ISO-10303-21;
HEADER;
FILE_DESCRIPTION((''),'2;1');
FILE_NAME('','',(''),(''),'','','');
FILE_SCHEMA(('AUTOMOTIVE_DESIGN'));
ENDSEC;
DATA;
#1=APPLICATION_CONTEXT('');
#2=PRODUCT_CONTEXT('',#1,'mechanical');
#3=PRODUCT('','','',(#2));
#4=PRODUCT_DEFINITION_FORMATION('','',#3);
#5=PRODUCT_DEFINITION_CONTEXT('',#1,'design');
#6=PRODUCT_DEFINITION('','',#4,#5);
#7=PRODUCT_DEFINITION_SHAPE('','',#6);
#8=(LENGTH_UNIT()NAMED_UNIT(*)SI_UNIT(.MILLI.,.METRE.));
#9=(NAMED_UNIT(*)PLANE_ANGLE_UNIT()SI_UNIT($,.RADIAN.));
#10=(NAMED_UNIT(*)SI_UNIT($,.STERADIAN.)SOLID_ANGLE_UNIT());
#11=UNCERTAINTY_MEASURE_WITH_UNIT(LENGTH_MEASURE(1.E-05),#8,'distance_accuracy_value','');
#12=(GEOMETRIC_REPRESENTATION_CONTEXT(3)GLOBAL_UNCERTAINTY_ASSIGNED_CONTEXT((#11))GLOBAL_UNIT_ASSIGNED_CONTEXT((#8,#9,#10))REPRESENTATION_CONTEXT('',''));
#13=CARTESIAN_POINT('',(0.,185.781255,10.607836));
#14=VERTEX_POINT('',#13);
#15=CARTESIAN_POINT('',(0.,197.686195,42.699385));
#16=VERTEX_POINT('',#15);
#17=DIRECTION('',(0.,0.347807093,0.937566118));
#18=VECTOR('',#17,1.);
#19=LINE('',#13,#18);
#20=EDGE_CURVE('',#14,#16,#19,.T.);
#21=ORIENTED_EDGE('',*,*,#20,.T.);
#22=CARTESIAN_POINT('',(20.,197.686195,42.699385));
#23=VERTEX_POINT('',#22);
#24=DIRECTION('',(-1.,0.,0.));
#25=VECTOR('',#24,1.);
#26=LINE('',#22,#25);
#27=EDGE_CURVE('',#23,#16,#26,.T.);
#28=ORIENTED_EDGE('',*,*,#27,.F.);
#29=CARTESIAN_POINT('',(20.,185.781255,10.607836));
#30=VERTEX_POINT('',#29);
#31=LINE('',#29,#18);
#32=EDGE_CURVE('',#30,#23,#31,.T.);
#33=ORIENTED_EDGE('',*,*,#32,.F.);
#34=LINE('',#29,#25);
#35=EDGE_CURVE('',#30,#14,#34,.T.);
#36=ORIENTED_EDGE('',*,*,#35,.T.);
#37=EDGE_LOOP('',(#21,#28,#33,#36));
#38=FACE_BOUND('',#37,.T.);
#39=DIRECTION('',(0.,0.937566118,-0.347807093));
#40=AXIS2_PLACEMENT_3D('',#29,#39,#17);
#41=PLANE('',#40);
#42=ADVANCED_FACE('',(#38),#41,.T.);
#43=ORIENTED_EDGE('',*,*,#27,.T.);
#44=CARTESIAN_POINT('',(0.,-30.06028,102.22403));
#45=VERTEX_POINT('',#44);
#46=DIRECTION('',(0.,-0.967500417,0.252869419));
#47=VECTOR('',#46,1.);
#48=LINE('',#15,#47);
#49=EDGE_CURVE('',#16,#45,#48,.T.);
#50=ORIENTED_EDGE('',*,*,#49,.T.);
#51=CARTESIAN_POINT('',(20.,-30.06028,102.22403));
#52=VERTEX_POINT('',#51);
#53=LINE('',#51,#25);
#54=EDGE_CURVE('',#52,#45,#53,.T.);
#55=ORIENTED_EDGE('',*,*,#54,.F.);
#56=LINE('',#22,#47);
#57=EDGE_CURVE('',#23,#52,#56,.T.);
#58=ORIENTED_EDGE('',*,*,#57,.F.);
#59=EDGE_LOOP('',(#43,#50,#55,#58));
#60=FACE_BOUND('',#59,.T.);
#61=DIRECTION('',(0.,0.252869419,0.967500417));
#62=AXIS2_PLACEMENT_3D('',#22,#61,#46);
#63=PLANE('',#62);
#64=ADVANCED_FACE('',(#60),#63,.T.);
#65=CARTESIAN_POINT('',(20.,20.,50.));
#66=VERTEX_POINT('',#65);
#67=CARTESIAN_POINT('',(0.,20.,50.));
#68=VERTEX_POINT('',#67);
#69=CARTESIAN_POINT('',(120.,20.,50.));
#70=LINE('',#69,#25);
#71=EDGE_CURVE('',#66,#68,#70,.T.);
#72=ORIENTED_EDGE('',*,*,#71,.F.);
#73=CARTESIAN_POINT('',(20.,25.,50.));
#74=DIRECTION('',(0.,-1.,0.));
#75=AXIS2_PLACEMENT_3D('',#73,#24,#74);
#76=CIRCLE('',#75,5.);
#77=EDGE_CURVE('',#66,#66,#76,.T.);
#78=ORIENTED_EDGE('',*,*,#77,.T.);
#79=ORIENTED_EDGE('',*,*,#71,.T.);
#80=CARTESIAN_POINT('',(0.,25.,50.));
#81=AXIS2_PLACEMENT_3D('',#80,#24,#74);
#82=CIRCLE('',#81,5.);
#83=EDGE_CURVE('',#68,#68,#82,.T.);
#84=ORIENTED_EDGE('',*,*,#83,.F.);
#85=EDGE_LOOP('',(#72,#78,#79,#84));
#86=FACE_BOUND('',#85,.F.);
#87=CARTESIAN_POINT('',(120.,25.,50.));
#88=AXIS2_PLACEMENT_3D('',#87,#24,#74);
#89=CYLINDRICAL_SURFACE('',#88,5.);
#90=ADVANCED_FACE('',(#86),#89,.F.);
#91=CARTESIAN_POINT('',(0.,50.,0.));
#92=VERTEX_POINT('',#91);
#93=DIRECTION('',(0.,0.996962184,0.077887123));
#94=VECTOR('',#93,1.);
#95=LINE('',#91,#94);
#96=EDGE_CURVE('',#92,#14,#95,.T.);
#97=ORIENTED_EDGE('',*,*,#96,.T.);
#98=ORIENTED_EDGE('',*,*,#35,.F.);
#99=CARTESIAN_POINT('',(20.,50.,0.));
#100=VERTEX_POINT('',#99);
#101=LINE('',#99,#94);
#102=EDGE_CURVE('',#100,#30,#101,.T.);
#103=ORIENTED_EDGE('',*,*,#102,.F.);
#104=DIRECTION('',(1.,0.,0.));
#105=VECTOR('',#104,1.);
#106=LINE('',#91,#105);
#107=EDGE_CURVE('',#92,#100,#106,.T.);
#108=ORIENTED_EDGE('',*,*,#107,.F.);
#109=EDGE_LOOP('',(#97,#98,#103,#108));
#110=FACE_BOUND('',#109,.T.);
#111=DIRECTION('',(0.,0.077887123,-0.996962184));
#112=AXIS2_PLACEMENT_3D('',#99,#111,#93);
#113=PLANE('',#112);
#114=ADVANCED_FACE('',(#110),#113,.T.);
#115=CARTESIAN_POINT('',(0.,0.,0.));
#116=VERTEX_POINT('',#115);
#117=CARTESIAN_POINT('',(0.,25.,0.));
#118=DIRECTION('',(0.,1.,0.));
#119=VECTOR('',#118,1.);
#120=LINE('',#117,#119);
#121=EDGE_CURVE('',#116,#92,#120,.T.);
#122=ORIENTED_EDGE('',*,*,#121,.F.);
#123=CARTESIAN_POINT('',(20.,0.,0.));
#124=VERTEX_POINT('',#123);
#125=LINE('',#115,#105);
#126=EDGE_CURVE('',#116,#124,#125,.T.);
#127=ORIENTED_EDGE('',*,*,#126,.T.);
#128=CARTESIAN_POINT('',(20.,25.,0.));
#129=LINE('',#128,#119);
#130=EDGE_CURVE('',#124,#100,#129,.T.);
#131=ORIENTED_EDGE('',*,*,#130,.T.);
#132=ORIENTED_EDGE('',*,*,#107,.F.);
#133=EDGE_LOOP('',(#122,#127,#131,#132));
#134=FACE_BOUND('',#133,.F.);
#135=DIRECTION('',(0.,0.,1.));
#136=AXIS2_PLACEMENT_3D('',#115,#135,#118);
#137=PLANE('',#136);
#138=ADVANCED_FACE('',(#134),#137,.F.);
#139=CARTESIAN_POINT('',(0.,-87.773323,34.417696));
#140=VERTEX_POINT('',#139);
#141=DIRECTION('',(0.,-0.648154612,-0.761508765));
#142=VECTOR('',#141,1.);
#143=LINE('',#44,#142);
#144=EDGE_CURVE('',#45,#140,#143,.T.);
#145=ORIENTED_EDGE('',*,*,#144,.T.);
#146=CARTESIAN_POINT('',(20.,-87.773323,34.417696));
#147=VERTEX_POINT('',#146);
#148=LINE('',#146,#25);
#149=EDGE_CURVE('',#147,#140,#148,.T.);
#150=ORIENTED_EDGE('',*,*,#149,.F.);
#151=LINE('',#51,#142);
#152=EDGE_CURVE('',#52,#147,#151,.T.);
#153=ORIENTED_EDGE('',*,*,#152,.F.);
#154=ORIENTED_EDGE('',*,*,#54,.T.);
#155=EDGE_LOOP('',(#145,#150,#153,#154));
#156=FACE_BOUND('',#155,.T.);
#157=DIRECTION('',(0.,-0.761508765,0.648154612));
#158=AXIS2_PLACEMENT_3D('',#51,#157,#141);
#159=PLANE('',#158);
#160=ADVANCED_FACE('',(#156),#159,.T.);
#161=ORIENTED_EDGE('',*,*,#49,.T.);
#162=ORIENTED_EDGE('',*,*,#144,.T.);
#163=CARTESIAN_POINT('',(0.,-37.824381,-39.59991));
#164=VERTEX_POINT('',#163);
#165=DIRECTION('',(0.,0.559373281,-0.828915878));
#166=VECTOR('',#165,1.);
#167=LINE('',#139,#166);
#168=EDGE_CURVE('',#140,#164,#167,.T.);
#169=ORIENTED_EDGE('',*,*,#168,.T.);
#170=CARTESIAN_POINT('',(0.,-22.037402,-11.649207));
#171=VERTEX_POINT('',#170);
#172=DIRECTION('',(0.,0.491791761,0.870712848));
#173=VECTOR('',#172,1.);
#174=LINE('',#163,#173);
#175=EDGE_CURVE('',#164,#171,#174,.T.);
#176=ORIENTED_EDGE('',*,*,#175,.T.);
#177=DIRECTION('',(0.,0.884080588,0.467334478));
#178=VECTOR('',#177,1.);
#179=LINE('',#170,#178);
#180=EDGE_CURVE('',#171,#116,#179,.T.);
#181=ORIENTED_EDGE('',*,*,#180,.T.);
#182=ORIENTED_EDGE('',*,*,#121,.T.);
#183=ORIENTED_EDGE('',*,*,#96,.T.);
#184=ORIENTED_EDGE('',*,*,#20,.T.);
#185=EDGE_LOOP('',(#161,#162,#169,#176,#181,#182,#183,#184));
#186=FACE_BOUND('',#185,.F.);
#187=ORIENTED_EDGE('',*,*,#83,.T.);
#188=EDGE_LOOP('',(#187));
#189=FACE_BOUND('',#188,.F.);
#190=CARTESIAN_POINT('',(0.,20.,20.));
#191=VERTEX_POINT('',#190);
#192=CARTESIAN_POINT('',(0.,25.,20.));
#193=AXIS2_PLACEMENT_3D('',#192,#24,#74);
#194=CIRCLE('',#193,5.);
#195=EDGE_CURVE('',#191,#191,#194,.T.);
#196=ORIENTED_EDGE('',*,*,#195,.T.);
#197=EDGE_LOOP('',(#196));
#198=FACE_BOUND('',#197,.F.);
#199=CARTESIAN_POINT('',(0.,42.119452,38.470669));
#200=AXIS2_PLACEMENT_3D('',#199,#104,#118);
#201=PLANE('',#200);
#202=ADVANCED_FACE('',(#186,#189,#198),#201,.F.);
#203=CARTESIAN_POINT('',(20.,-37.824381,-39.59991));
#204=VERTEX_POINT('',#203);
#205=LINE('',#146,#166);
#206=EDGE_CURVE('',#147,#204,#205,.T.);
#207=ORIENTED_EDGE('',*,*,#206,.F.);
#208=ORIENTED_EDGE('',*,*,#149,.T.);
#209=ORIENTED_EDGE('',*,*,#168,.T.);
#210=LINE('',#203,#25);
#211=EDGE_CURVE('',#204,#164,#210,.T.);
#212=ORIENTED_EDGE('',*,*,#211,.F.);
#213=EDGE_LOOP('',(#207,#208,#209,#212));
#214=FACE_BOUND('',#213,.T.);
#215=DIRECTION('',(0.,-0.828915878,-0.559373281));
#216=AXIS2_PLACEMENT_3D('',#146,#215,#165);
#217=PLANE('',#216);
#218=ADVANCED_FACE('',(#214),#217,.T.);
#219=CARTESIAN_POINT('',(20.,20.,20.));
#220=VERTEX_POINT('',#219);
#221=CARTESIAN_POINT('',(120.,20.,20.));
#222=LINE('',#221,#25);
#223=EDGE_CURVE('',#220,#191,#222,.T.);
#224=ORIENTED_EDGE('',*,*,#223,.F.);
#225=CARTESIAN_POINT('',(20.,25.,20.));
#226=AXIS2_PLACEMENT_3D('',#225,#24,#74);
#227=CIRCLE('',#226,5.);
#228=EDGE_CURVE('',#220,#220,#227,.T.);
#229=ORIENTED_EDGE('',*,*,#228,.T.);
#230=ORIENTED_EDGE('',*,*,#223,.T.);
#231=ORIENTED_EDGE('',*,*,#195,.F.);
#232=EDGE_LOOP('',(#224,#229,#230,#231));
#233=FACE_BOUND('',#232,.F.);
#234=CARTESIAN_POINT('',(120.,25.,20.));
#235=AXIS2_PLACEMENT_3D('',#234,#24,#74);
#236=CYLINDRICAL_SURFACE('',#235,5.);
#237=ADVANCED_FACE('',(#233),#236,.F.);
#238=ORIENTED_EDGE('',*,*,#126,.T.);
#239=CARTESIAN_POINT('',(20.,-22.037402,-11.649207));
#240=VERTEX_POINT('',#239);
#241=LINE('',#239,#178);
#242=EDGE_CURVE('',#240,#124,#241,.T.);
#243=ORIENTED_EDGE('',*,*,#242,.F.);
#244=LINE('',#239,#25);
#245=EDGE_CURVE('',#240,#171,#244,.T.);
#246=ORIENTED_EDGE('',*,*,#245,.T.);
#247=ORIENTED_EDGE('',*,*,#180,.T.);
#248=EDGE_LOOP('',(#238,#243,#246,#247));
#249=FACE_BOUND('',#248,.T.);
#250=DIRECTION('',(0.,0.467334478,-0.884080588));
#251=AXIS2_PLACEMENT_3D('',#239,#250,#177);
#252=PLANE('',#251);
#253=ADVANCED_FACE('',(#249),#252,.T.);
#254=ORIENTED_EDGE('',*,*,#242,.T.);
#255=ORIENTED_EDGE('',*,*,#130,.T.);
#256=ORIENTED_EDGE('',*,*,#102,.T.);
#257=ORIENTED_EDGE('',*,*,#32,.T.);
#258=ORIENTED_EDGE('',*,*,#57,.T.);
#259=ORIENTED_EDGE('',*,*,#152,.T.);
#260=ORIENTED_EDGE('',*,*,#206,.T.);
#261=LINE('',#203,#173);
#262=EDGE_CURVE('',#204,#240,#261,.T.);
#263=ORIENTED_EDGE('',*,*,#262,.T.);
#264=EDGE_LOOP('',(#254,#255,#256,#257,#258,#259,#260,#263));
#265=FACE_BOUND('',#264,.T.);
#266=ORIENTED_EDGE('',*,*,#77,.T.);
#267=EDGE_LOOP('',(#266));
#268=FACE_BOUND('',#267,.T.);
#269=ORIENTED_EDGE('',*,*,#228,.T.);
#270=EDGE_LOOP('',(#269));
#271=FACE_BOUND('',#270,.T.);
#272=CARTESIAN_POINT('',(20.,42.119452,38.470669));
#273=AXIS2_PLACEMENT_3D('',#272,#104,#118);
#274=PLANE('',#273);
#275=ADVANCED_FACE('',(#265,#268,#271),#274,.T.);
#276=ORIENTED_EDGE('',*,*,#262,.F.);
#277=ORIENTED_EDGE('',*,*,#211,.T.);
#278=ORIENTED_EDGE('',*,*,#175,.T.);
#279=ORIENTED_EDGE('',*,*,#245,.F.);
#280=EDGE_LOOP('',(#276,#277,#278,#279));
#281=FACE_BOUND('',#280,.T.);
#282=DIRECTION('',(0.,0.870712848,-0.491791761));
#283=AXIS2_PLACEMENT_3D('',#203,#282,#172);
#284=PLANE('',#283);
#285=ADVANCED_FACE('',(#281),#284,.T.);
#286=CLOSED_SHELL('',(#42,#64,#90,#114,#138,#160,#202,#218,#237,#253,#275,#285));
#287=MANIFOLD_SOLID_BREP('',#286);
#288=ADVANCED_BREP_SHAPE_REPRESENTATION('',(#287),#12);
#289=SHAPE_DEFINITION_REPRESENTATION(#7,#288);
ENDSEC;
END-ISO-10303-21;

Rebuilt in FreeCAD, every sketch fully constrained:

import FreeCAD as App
import Part
import Sketcher

V = App.Vector
Q = App.Units.Quantity

doc = App.newDocument("Part")
params = doc.addObject("Spreadsheet::Sheet", "Params")
for row, (alias, value) in enumerate([
    ("sketch1_width", "50 mm"),
    ("sketch1_height", "70 mm"),
    ("pad1_length", "20 mm"),
    ("sketch2_diameter", "10 mm"),
    ("hole_diameter", "10 mm"),
    ("hole_depth", "100 mm"),
    ("sketch3_width", "50 mm"),
    ("sketch3_height", "70 mm"),
    ("pad2_length", "20 mm"),
], start=1):
    params.set(f"A{row}", alias)
    params.set(f"B{row}", "=" + value)
    params.setAlias(f"B{row}", alias)

body = doc.addObject("PartDesign::Body", "Body")

# Sketch on YZ plane
sketch1 = doc.addObject("Sketcher::SketchObject", "Sketch")
body.addObject(sketch1)
sketch1.AttachmentSupport = (doc.YZ_Plane, [""])
sketch1.MapMode = "FlatFace"
sketch1.addGeometry(Part.LineSegment(V(0, 70, 0), V(0, 0, 0)), False)
sketch1.addGeometry(Part.LineSegment(V(0, 0, 0), V(50, 0, 0)), False)
sketch1.addGeometry(Part.LineSegment(V(50, 0, 0), V(50, 70, 0)), False)
sketch1.addGeometry(Part.LineSegment(V(50, 70, 0), V(0, 70, 0)), False)
sketch1.addConstraint(Sketcher.Constraint("Coincident", 0, 2, 1, 1))
sketch1.addConstraint(Sketcher.Constraint("Coincident", 1, 2, 2, 1))
sketch1.addConstraint(Sketcher.Constraint("Coincident", 2, 2, 3, 1))
sketch1.addConstraint(Sketcher.Constraint("Coincident", 3, 2, 0, 1))
sketch1.addConstraint(Sketcher.Constraint("Vertical", 0))
sketch1.addConstraint(Sketcher.Constraint("Horizontal", 1))
sketch1.addConstraint(Sketcher.Constraint("Vertical", 2))
sketch1.addConstraint(Sketcher.Constraint("Horizontal", 3))
sketch1.addConstraint(Sketcher.Constraint("Coincident", 0, 2, -1, 1))
sketch1.addConstraint(Sketcher.Constraint("DistanceX", 1, 1, 1, 2, Q("50 mm")))
sketch1.addConstraint(Sketcher.Constraint("DistanceY", 0, 2, 0, 1, Q("70 mm")))
sketch1.setExpression("Constraints[9]", "Params.sketch1_width")
sketch1.setExpression("Constraints[10]", "Params.sketch1_height")
pad1 = doc.addObject("PartDesign::Pad", "Pad")
body.addObject(pad1)
pad1.Profile = sketch1
pad1.setExpression("Length", "Params.pad1_length")

# Sketch on YZ plane
sketch2 = doc.addObject("Sketcher::SketchObject", "Sketch001")
body.addObject(sketch2)
sketch2.AttachmentSupport = (doc.YZ_Plane, [""])
sketch2.MapMode = "FlatFace"
sketch2.AttachmentOffset = App.Placement(V(0, 0, 20), App.Rotation())
sketch2.addGeometry(Part.Circle(V(25, 20, 0), V(0, 0, 1), 5), False)
sketch2.addGeometry(Part.Circle(V(25, 50, 0), V(0, 0, 1), 5), False)
sketch2.addConstraint(Sketcher.Constraint("Equal", 0, 1))
sketch2.addConstraint(Sketcher.Constraint("Vertical", 0, 3, 1, 3))
sketch2.addConstraint(Sketcher.Constraint("Diameter", 0, Q("10 mm")))
sketch2.addConstraint(Sketcher.Constraint("DistanceX", -1, 1, 0, 3, Q("25 mm")))
sketch2.addConstraint(Sketcher.Constraint("DistanceY", -1, 1, 0, 3, Q("20 mm")))
sketch2.addConstraint(Sketcher.Constraint("DistanceY", -1, 1, 1, 3, Q("50 mm")))
sketch2.setExpression("Constraints[2]", "Params.sketch2_diameter")
doc.recompute()
hole = doc.addObject("PartDesign::Hole", "Hole")
body.addObject(hole)
hole.Profile = sketch2
hole.ThreadType = "None"
hole.setExpression("Diameter", "Params.hole_diameter")
hole.DepthType = "Dimension"
hole.setExpression("Depth", "Params.hole_depth")
hole.DrillPoint = "Flat"

# Sketch on YZ plane
sketch3 = doc.addObject("Sketcher::SketchObject", "Sketch002")
body.addObject(sketch3)
sketch3.AttachmentSupport = (doc.YZ_Plane, [""])
sketch3.MapMode = "FlatFace"
sketch3.AttachmentOffset = App.Placement(V(0, 0, 20), App.Rotation())
sketch3.addGeometry(Part.LineSegment(V(-22, -12, 0), V(0, 0, 0)), False)
sketch3.addGeometry(Part.LineSegment(V(0, 0, 0), V(0, 70, 0)), False)
sketch3.addGeometry(Part.LineSegment(V(0, 70, 0), V(50, 70, 0)), False)
sketch3.addGeometry(Part.LineSegment(V(50, 70, 0), V(50, 0, 0)), False)
sketch3.addGeometry(Part.LineSegment(V(50, 0, 0), V(186, 11, 0)), False)
sketch3.addGeometry(Part.LineSegment(V(186, 11, 0), V(198, 43, 0)), False)
sketch3.addGeometry(Part.LineSegment(V(198, 43, 0), V(-30, 102, 0)), False)
sketch3.addGeometry(Part.LineSegment(V(-30, 102, 0), V(-88, 34, 0)), False)
sketch3.addGeometry(Part.LineSegment(V(-88, 34, 0), V(-38, -40, 0)), False)
sketch3.addGeometry(Part.LineSegment(V(-38, -40, 0), V(-22, -12, 0)), False)
sketch3.addConstraint(Sketcher.Constraint("Coincident", 0, 2, 1, 1))
sketch3.addConstraint(Sketcher.Constraint("Coincident", 1, 2, 2, 1))
sketch3.addConstraint(Sketcher.Constraint("Coincident", 2, 2, 3, 1))
sketch3.addConstraint(Sketcher.Constraint("Coincident", 3, 2, 4, 1))
sketch3.addConstraint(Sketcher.Constraint("Coincident", 4, 2, 5, 1))
sketch3.addConstraint(Sketcher.Constraint("Coincident", 5, 2, 6, 1))
sketch3.addConstraint(Sketcher.Constraint("Coincident", 6, 2, 7, 1))
sketch3.addConstraint(Sketcher.Constraint("Coincident", 7, 2, 8, 1))
sketch3.addConstraint(Sketcher.Constraint("Coincident", 8, 2, 9, 1))
sketch3.addConstraint(Sketcher.Constraint("Coincident", 9, 2, 0, 1))
sketch3.addConstraint(Sketcher.Constraint("Vertical", 1))
sketch3.addConstraint(Sketcher.Constraint("Horizontal", 2))
sketch3.addConstraint(Sketcher.Constraint("Vertical", 3))
sketch3.addConstraint(Sketcher.Constraint("Coincident", 0, 2, -1, 1))
sketch3.addConstraint(Sketcher.Constraint("PointOnObject", 3, 2, -1))
sketch3.addConstraint(Sketcher.Constraint("DistanceX", 2, 1, 2, 2, Q("50 mm")))
sketch3.addConstraint(Sketcher.Constraint("DistanceY", 1, 1, 1, 2, Q("70 mm")))
sketch3.addConstraint(Sketcher.Constraint("DistanceX", 9, 2, -1, 1, Q("22.037402 mm")))
sketch3.addConstraint(Sketcher.Constraint("Distance", 4, Q("136.19499 mm")))
sketch3.addConstraint(Sketcher.Constraint("Distance", 5, Q("34.228572 mm")))
sketch3.addConstraint(Sketcher.Constraint("Distance", 6, Q("235.396772 mm")))
sketch3.addConstraint(Sketcher.Constraint("DistanceX", 6, 2, -1, 1, Q("30.06028 mm")))
sketch3.addConstraint(Sketcher.Constraint("DistanceY", -1, 1, 6, 2, Q("102.22403 mm")))
sketch3.addConstraint(Sketcher.Constraint("DistanceX", 8, 2, -1, 1, Q("37.824381 mm")))
sketch3.addConstraint(Sketcher.Constraint("DistanceY", 8, 2, -1, 1, Q("39.59991 mm")))
sketch3.addConstraint(Sketcher.Constraint("DistanceX", 4, 2, 5, 2, Q("11.90494 mm")))
sketch3.addConstraint(Sketcher.Constraint("DistanceX", 7, 2, 9, 2, Q("65.735921 mm")))
sketch3.addConstraint(Sketcher.Constraint("Distance", 0, Q("24.926915 mm")))
sketch3.addConstraint(Sketcher.Constraint("Distance", 7, Q("89.042093 mm")))
sketch3.setExpression("Constraints[15]", "Params.sketch3_width")
sketch3.setExpression("Constraints[16]", "Params.sketch3_height")
pad2 = doc.addObject("PartDesign::Pad", "Pad001")
body.addObject(pad2)
pad2.Profile = sketch3
pad2.setExpression("Length", "Params.pad2_length")
pad2.Reversed = True

doc.recompute()
